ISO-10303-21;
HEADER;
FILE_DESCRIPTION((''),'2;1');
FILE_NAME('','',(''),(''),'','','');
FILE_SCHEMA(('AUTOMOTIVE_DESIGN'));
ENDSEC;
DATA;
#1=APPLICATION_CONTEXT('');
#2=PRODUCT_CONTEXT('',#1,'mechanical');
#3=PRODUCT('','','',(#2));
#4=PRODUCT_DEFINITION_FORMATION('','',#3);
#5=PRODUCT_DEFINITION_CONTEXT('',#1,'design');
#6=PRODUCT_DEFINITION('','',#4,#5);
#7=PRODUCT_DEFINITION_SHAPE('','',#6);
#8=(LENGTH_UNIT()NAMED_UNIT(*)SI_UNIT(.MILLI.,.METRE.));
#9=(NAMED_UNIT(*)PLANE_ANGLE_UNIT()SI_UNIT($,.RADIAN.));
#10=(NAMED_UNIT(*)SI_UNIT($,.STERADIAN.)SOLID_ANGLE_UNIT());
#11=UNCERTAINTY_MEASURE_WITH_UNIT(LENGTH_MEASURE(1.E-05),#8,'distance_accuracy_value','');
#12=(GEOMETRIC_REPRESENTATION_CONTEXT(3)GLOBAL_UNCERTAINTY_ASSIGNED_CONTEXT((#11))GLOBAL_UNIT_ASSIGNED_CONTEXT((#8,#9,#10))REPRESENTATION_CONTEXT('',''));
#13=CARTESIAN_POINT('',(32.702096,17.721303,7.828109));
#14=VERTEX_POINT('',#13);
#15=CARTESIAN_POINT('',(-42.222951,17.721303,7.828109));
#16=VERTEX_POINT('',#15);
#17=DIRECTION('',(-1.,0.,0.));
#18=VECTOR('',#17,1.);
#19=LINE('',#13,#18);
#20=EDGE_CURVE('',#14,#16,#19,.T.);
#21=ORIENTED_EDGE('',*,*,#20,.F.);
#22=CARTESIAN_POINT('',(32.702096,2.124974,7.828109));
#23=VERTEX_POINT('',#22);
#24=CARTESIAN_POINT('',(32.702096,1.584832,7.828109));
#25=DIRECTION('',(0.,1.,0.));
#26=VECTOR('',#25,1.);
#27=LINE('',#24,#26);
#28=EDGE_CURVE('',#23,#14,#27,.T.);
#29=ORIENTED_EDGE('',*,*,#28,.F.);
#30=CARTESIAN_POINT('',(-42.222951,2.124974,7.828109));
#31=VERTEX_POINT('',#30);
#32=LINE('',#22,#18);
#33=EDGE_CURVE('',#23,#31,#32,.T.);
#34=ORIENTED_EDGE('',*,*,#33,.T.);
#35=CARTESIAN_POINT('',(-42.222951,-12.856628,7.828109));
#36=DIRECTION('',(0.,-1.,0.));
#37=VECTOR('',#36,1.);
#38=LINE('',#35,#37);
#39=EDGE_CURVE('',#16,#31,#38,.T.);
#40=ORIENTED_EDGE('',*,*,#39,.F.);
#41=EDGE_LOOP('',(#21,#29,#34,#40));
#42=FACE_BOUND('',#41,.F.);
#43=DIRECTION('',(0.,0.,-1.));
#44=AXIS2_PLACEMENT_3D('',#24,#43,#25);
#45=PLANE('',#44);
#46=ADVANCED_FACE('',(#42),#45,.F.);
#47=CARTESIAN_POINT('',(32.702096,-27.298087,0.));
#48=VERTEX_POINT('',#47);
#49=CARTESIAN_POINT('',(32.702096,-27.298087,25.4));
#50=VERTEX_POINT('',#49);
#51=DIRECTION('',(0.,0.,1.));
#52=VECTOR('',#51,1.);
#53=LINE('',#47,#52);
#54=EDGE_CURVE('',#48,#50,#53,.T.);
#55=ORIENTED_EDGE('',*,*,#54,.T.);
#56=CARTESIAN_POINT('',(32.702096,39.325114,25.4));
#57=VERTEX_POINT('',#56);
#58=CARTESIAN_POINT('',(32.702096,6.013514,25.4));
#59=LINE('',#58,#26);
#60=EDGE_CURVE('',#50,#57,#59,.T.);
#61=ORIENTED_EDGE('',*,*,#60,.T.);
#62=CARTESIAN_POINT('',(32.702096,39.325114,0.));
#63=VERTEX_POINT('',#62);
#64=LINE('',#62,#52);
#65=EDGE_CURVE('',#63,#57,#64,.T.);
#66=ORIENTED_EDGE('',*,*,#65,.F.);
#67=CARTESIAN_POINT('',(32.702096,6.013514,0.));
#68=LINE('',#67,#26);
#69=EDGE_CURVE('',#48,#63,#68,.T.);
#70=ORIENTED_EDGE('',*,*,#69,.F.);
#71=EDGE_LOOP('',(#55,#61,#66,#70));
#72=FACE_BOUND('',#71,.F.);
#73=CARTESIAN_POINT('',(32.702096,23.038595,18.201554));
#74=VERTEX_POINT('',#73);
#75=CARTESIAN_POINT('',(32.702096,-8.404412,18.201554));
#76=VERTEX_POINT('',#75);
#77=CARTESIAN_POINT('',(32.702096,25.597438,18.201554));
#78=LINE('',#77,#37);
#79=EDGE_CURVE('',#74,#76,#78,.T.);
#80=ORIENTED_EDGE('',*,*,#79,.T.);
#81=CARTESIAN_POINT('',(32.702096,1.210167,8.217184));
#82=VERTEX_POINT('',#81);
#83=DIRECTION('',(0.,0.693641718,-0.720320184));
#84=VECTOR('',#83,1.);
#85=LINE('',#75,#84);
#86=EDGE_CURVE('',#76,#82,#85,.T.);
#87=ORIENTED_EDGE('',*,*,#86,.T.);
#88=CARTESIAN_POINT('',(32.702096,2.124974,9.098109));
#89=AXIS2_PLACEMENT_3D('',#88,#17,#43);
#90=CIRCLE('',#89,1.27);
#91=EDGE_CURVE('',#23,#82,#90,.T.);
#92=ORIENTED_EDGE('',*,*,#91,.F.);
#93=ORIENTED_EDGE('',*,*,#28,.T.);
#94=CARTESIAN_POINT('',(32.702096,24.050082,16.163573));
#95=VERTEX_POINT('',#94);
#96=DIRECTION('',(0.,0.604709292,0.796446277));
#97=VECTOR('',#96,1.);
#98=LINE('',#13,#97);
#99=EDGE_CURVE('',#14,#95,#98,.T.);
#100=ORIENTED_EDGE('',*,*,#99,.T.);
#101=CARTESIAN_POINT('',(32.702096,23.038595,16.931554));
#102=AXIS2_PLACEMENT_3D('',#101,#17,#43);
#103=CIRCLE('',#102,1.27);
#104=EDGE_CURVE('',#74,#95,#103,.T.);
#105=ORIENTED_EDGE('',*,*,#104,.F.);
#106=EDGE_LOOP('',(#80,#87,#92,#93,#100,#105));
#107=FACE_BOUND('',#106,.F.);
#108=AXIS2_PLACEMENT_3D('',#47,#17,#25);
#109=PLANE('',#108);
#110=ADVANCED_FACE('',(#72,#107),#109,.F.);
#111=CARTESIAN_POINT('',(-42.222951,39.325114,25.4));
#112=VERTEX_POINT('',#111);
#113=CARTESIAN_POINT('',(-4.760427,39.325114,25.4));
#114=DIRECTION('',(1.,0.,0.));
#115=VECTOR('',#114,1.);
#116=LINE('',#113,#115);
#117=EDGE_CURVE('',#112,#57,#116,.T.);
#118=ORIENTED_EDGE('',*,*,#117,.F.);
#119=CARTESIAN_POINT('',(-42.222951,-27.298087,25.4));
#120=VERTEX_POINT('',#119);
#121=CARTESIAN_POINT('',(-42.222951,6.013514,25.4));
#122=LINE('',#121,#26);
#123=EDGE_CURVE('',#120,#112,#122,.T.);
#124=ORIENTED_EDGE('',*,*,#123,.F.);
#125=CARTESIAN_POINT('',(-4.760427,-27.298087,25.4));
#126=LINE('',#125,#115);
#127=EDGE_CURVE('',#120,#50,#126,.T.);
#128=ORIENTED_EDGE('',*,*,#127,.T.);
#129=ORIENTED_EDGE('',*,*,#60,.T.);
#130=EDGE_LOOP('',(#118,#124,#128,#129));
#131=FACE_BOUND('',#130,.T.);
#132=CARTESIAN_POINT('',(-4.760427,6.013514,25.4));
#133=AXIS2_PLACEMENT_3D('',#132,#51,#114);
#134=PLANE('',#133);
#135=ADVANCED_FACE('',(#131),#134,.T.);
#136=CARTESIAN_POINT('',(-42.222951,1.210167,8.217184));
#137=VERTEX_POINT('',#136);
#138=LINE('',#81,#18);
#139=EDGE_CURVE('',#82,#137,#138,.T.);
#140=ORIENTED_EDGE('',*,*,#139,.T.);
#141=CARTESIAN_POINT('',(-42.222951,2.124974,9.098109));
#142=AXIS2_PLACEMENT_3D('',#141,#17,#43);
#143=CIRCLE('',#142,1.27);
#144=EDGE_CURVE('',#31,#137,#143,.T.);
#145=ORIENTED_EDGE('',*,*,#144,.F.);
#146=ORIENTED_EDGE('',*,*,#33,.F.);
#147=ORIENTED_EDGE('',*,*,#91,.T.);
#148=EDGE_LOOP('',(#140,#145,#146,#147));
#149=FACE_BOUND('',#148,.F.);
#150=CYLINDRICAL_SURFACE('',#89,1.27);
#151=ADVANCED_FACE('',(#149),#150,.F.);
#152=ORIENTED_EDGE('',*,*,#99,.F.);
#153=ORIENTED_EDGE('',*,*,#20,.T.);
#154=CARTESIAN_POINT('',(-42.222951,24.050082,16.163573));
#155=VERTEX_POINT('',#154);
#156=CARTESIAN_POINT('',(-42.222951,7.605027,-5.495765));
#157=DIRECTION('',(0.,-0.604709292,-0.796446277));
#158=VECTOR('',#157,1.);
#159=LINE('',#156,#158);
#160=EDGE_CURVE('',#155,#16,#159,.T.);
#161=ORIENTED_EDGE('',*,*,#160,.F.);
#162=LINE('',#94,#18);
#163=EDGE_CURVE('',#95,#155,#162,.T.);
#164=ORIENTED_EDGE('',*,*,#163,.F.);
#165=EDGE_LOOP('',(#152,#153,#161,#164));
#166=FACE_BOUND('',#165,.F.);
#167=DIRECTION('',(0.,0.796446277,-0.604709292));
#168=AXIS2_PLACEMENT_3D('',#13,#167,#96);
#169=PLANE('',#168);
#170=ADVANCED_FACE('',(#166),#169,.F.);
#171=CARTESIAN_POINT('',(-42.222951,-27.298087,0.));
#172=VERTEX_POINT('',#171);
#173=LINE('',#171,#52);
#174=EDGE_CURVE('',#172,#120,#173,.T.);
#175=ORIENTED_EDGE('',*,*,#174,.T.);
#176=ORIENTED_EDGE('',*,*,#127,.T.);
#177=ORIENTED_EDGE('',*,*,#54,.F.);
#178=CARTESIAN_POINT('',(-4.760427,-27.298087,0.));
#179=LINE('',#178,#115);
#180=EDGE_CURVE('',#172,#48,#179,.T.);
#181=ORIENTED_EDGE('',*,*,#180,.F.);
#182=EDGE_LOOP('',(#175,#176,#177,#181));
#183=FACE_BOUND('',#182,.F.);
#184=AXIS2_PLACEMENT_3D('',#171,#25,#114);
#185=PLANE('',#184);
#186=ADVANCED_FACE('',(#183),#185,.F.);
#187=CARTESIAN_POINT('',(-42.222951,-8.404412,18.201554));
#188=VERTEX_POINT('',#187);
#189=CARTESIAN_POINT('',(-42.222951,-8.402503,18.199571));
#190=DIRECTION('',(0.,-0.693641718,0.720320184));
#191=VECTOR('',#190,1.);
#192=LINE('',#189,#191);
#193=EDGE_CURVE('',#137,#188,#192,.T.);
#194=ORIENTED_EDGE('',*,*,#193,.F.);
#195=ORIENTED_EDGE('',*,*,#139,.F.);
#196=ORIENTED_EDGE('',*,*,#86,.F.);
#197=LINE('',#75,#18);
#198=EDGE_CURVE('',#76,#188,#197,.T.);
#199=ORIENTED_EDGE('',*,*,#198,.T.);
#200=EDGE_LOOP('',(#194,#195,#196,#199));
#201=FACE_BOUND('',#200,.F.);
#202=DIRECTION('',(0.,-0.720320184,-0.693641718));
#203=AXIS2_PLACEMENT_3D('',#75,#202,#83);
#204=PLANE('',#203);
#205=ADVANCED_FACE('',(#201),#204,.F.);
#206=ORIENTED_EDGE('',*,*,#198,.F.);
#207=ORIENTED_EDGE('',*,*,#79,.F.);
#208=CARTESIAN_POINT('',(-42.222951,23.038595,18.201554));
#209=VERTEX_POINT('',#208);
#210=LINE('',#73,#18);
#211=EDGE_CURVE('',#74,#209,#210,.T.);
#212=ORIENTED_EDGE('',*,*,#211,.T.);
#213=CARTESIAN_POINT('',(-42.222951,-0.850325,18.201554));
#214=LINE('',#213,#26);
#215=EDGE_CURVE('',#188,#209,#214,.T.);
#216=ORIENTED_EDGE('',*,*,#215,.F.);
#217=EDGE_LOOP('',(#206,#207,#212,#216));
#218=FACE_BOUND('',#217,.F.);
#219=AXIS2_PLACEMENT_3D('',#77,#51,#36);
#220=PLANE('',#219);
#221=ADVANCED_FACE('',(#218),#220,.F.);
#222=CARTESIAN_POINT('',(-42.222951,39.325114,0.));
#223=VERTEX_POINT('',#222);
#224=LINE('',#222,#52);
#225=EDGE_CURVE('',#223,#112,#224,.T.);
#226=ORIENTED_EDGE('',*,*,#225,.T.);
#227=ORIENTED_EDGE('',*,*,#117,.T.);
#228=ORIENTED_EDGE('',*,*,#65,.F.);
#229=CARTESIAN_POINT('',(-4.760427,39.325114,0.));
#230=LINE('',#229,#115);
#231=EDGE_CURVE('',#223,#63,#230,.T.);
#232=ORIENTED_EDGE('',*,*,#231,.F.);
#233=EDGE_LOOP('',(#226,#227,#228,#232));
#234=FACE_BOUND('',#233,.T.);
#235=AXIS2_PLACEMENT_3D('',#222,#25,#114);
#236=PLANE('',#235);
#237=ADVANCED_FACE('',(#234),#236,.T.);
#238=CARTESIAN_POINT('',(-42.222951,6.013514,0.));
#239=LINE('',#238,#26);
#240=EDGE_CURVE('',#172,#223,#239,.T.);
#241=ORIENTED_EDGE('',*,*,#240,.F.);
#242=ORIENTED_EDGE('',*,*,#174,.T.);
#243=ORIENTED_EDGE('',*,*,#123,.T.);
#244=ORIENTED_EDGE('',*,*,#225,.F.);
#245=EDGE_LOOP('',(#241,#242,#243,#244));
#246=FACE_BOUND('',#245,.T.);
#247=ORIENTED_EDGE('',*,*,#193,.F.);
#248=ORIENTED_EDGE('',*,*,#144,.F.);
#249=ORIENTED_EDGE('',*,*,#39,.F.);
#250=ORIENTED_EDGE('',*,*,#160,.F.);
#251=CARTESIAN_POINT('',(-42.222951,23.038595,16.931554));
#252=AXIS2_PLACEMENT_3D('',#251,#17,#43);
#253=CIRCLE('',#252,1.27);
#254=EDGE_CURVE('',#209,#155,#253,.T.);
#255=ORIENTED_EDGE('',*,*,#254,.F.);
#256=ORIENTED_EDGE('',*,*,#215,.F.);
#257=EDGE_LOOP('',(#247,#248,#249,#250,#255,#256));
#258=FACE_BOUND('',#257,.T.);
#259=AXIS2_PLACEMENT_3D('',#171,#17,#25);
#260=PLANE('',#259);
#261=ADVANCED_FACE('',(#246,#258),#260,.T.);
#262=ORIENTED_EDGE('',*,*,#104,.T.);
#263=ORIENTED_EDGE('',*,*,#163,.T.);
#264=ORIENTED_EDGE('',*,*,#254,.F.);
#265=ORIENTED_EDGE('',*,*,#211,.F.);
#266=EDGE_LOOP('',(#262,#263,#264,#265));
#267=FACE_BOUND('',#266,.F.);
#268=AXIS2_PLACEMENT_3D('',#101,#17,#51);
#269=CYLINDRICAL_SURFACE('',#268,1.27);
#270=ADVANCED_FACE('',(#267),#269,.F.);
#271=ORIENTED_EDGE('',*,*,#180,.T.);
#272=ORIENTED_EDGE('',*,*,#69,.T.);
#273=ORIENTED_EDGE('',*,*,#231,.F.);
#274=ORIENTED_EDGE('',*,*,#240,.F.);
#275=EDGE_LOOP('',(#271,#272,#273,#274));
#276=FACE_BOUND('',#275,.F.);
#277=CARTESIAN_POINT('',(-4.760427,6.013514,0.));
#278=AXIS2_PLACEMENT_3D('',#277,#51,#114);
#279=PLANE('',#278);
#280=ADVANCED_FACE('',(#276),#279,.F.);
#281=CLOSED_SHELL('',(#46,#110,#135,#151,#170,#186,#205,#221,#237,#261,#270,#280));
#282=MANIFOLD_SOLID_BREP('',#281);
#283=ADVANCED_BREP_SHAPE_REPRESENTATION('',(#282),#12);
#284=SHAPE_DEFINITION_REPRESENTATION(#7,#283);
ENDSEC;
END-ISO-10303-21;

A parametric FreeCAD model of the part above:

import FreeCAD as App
import Part
import Sketcher
from FreeCAD import Vector
Q = App.Units.Quantity


def edges_at(feature, points):
    """Names of the edges that pass closest to the given points."""
    edges = feature.Shape.Edges
    near = lambda p: min(range(len(edges)), key=lambda i: edges[i].distToShape(Part.Vertex(*p))[0])
    return sorted({f"Edge{near(p) + 1}" for p in points})


def add_polygon(sketch, points):
    """Adds a closed chain of lines whose ends are joined by coincident constraints."""
    first, n = sketch.GeometryCount, len(points)
    for a, b in zip(points, points[1:] + points[:1]):
        sketch.addGeometry(Part.LineSegment(App.Vector(*a, 0), App.Vector(*b, 0)), False)
    for i in range(n):
        sketch.addConstraint(Sketcher.Constraint("Coincident", first + i, 2, first + (i + 1) % n, 1))

doc = App.newDocument("Part")
body = doc.addObject("PartDesign::Body", "Body")

# Sketch on XY plane
sketch1 = body.newObject("Sketcher::SketchObject", "Sketch")
sketch1.AttachmentSupport = (doc.getObject("XY_Plane"), [""])
sketch1.MapMode = "FlatFace"
add_polygon(sketch1, [(-42, 39), (-42, -27), (33, -27), (33, 39)])  # lines 0-3
sketch1.addConstraint([
    Sketcher.Constraint("Vertical", 0),
    Sketcher.Constraint("Horizontal", 1),
    Sketcher.Constraint("Vertical", 2),
    Sketcher.Constraint("Horizontal", 3),
    Sketcher.Constraint("DistanceY", 0, 2, 0, 1, 66.623202),
    Sketcher.Constraint("DistanceX", 1, 1, 1, 2, 74.925046),
    Sketcher.Constraint("DistanceX", 0, 2, -1, 1, 42.222951),
    Sketcher.Constraint("DistanceY", 0, 2, -1, 1, 27.298087),
])
pad1 = body.newObject("PartDesign::Pad", "Pad")
pad1.Profile = sketch1
pad1.Length = Q("1 in")

# Sketch on YZ plane
sketch2 = body.newObject("Sketcher::SketchObject", "Sketch001")
sketch2.AttachmentSupport = (doc.getObject("YZ_Plane"), [""])
sketch2.MapMode = "FlatFace"
sketch2.AttachmentOffset = App.Placement(Vector(0, 0, 32.702096), App.Rotation())
add_polygon(sketch2, [(26, 18), (-8, 18), (2, 8), (18, 8)])  # lines 0-3
sketch2.addConstraint([
    Sketcher.Constraint("Horizontal", 0),
    Sketcher.Constraint("Horizontal", 2),
    Sketcher.Constraint("DistanceX", 0, 2, 0, 1, 34.001851),
    Sketcher.Constraint("DistanceX", 2, 1, 2, 2, 16.136471),
    Sketcher.Constraint("Distance", 1, 14.401159),
    Sketcher.Constraint("DistanceY", -1, 1, 1, 2, 7.828109),
    Sketcher.Constraint("DistanceX", -1, 1, 3, 2, 25.597438),
    Sketcher.Constraint("Distance", 3, 13.024664),
])
pocket1 = body.newObject("PartDesign::Pocket", "Pocket")
pocket1.Profile = sketch2
pocket1.Length = Q("3.31 in")
doc.recompute()

fillet = body.newObject("PartDesign::Fillet", "Fillet")
fillet.Base = (pocket1, edges_at(pocket1, [(-4.76, 1.585, 7.828), (-4.76, 25.597, 18.202)]))
fillet.Radius = Q("0.05 in")

doc.recompute()
